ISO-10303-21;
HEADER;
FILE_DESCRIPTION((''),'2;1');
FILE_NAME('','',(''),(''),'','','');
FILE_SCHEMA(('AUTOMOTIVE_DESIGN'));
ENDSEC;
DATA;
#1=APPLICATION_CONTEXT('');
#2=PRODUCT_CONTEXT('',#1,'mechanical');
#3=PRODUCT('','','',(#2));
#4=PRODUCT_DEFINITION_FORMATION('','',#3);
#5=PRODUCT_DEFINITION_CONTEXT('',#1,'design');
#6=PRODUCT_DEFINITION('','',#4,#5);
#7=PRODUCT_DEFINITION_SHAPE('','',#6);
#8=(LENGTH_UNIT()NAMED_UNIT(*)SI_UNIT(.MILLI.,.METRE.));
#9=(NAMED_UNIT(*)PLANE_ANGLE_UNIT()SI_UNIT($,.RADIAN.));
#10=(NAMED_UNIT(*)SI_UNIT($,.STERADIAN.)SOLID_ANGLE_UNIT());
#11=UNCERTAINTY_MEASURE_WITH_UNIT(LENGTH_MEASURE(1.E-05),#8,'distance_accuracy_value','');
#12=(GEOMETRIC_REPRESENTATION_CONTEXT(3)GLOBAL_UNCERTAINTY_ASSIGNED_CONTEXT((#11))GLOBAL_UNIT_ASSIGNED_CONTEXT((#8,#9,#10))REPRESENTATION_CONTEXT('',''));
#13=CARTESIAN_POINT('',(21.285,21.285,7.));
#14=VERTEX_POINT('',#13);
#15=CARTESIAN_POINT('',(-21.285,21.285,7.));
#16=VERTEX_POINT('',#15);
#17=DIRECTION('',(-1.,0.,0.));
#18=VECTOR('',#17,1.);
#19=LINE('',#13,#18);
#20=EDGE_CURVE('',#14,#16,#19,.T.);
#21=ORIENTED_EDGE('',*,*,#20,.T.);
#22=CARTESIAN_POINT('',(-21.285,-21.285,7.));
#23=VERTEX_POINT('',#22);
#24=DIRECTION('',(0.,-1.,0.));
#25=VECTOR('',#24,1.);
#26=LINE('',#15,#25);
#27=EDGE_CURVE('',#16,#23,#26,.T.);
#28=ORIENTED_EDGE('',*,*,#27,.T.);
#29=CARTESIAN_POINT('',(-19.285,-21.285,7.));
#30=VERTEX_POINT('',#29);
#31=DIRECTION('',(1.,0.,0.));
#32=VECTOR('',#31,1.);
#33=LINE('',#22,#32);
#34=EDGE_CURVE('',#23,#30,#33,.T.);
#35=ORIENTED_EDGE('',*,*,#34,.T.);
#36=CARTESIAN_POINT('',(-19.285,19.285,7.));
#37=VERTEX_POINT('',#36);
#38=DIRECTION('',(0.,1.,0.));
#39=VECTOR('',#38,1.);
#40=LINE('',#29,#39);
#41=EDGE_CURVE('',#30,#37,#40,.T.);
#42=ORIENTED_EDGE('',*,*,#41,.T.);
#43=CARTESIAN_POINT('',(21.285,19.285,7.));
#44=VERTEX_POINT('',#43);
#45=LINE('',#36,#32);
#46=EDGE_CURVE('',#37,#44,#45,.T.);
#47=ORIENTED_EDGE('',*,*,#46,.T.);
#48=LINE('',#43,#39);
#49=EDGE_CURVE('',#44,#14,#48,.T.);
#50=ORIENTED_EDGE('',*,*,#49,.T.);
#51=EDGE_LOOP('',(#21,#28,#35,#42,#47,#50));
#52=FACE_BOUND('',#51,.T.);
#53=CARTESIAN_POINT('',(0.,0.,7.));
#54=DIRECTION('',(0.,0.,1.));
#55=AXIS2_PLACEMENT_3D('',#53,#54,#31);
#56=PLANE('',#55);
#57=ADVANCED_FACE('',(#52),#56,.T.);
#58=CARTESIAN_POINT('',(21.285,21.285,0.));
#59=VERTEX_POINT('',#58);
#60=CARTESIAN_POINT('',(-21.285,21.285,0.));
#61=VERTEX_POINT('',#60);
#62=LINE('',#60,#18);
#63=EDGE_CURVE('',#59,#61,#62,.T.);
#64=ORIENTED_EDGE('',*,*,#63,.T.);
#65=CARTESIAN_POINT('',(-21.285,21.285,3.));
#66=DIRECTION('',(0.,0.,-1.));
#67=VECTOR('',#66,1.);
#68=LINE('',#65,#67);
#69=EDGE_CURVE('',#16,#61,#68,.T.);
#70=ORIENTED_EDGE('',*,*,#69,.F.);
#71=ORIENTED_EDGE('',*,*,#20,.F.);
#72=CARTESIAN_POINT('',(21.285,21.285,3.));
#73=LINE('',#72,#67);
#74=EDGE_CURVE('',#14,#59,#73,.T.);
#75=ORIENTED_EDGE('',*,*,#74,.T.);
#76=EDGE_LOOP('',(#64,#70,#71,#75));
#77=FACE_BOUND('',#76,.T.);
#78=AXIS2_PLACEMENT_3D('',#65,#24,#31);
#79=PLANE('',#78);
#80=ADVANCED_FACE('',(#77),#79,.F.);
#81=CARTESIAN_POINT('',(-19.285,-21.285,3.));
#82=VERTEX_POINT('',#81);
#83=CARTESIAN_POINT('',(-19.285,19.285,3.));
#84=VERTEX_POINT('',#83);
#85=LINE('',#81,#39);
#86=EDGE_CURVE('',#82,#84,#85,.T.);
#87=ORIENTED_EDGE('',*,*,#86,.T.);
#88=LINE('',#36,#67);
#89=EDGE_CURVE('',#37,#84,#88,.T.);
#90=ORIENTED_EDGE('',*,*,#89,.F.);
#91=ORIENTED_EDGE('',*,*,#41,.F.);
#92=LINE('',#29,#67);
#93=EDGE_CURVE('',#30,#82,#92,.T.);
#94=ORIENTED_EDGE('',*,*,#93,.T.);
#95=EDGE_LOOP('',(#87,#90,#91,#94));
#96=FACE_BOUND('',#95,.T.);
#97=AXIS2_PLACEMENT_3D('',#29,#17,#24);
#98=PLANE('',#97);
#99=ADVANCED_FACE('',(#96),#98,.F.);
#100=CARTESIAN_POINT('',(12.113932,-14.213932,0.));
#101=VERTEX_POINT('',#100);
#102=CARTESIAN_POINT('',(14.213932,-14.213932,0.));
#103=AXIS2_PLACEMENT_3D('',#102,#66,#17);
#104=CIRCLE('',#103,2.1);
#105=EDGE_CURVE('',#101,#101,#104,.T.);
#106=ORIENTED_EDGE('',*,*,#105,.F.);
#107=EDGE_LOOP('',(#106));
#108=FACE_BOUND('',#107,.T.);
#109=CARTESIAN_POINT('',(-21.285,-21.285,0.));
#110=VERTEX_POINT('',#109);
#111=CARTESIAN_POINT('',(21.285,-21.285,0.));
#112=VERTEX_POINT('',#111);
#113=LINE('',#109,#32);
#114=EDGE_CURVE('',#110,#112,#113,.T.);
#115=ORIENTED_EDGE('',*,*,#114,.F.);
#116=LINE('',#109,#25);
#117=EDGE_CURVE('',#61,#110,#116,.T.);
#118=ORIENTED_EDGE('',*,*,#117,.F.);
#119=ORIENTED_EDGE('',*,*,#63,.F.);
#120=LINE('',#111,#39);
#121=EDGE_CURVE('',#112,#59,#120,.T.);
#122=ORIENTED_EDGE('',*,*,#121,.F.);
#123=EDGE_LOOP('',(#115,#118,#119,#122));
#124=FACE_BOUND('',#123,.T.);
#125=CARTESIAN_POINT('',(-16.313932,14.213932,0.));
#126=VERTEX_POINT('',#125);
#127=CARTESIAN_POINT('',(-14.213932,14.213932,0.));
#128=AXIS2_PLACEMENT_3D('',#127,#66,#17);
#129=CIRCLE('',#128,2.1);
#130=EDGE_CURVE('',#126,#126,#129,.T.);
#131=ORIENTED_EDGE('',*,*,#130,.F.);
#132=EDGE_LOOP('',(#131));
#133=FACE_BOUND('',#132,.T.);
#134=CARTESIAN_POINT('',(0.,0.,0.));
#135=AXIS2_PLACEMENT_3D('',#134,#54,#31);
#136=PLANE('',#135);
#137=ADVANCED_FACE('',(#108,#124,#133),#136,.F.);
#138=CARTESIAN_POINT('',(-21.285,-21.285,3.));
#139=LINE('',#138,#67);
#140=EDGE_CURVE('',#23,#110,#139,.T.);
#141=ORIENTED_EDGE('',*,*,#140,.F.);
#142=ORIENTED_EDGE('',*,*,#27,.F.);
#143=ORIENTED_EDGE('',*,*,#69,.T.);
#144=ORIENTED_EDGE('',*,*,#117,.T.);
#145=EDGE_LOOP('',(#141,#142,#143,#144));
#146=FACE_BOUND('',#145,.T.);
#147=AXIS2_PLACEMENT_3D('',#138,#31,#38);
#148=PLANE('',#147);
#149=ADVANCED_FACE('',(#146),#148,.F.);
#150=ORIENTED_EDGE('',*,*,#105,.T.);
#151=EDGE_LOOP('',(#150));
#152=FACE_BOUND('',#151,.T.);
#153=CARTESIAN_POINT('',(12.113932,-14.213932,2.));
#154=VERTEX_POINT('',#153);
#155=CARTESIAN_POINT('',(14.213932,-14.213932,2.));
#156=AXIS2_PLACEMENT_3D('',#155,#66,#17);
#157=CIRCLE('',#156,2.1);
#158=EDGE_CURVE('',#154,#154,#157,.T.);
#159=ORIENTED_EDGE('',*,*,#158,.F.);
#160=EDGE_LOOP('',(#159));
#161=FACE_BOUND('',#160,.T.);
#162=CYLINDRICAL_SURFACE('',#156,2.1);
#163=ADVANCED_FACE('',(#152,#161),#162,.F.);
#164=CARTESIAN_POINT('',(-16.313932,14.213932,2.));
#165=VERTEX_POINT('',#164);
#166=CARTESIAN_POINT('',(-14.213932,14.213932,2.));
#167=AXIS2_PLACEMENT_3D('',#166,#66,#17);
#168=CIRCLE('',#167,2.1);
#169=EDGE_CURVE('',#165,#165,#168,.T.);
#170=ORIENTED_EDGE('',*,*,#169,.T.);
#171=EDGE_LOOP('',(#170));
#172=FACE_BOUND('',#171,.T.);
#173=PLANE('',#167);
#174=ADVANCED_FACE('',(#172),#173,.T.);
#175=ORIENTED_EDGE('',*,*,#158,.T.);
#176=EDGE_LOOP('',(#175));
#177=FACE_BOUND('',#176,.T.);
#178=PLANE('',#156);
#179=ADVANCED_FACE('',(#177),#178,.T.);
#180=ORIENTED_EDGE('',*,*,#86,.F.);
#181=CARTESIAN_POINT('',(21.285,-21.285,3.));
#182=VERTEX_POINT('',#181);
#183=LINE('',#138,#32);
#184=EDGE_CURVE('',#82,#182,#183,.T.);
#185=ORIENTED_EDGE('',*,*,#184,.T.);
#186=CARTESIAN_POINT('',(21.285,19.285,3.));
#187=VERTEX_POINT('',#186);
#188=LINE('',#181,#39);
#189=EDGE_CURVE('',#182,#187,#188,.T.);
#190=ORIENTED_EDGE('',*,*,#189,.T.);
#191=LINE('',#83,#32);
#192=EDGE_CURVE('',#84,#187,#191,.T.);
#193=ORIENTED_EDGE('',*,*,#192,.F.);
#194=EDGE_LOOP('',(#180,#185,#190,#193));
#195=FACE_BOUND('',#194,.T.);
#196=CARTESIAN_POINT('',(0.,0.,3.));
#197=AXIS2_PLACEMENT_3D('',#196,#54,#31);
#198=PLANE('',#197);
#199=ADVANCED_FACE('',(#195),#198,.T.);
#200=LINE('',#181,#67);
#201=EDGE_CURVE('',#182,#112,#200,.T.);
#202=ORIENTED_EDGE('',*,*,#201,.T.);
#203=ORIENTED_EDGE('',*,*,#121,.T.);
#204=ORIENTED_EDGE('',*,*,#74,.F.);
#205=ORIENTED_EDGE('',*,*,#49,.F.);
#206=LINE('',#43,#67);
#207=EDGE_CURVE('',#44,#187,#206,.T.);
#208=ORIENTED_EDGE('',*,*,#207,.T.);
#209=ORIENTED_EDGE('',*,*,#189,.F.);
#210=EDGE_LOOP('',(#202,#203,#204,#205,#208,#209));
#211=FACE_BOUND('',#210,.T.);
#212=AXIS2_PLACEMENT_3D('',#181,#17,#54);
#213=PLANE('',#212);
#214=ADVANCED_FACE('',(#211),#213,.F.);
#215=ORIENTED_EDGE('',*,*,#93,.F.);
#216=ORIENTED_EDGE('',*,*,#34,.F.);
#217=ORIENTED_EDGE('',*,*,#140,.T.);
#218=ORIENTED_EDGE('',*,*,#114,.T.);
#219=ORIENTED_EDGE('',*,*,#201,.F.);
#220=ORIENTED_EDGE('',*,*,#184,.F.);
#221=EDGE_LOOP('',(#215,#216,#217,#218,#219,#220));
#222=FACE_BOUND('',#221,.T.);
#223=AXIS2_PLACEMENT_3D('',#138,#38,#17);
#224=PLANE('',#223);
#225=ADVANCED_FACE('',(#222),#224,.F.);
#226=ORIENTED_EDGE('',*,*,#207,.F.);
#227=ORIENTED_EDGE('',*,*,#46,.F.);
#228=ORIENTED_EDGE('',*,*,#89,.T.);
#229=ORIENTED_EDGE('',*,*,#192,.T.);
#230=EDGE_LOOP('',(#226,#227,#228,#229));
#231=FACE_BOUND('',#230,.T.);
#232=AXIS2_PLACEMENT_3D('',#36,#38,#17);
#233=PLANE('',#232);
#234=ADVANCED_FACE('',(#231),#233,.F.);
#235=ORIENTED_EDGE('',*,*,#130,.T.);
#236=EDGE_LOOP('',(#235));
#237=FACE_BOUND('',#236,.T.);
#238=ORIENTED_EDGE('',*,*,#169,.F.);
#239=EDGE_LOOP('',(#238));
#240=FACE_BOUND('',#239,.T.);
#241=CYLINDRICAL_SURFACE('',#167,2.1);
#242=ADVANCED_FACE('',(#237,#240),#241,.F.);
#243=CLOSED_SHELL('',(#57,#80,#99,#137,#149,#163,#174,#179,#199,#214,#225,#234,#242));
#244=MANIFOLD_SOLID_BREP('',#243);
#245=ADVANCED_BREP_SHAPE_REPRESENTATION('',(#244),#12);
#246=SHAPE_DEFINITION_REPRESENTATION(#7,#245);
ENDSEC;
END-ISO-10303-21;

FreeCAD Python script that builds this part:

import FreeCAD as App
import Part
import Sketcher
from FreeCAD import Vector
Q = App.Units.Quantity

doc = App.newDocument("Part")
params = doc.addObject("Spreadsheet::Sheet", "Params")
for row, (alias, value) in enumerate([
    ("sketch1_width", "42.57 mm"),
    ("pad1_length", "3 mm"),
    ("sketch2_width", "2 mm"),
    ("sketch2_width2", "42.57 mm"),
    ("pad2_length", "4 mm"),
    ("sketch3_diameter", "4.2 mm"),
    ("pocket1_length", "2 mm"),
], start=1):
    params.set(f"A{row}", alias)
    params.set(f"B{row}", "=" + value)
    params.setAlias(f"B{row}", alias)

body = doc.addObject("PartDesign::Body", "Body")

sketch1 = body.newObject("Sketcher::SketchObject", "Sketch")
sketch1.AttachmentSupport = (doc.getObject("XY_Plane"), [""])
sketch1.MapMode = "FlatFace"
sketch1.addGeometry(Part.LineSegment(Vector(-21.285, -21.285, 0), Vector(21.285, -21.285, 0)), False)
sketch1.addGeometry(Part.LineSegment(Vector(21.285, -21.285, 0), Vector(21.285, 21.285, 0)), False)
sketch1.addGeometry(Part.LineSegment(Vector(21.285, 21.285, 0), Vector(-21.285, 21.285, 0)), False)
sketch1.addGeometry(Part.LineSegment(Vector(-21.285, 21.285, 0), Vector(-21.285, -21.285, 0)), False)
sketch1.addConstraint(Sketcher.Constraint("Coincident", 0, 2, 1, 1))
sketch1.addConstraint(Sketcher.Constraint("Coincident", 1, 2, 2, 1))
sketch1.addConstraint(Sketcher.Constraint("Coincident", 2, 2, 3, 1))
sketch1.addConstraint(Sketcher.Constraint("Coincident", 3, 2, 0, 1))
sketch1.addConstraint(Sketcher.Constraint("Horizontal", 0))
sketch1.addConstraint(Sketcher.Constraint("Vertical", 1))
sketch1.addConstraint(Sketcher.Constraint("Horizontal", 2))
sketch1.addConstraint(Sketcher.Constraint("Vertical", 3))
sketch1.addConstraint(Sketcher.Constraint("Symmetric", 0, 2, 2, 2, -1, 1))
sketch1.addConstraint(Sketcher.Constraint("Equal", 2, 1))
sketch1.addConstraint(Sketcher.Constraint("DistanceX", 0, 1, 0, 2, Q("42.57 mm")))
sketch1.setExpression("Constraints[10]", "Params.sketch1_width")
pad1 = body.newObject("PartDesign::Pad", "Pad")
pad1.Profile = sketch1
pad1.setExpression("Length", "Params.pad1_length")

sketch2 = body.newObject("Sketcher::SketchObject", "Sketch001")
sketch2.AttachmentSupport = (doc.getObject("XY_Plane"), [""])
sketch2.MapMode = "FlatFace"
sketch2.AttachmentOffset = App.Placement(Vector(0, 0, 3), App.Rotation())
sketch2.addGeometry(Part.LineSegment(Vector(21.285, 21.285, 0), Vector(-21.285, 21.285, 0)), False)
sketch2.addGeometry(Part.LineSegment(Vector(-21.285, 21.285, 0), Vector(-21.285, -21.285, 0)), False)
sketch2.addGeometry(Part.LineSegment(Vector(-21.285, -21.285, 0), Vector(-19.285, -21.285, 0)), False)
sketch2.addGeometry(Part.LineSegment(Vector(-19.285, -21.285, 0), Vector(-19.285, 19.285, 0)), False)
sketch2.addGeometry(Part.LineSegment(Vector(-19.285, 19.285, 0), Vector(21.285, 19.285, 0)), False)
sketch2.addGeometry(Part.LineSegment(Vector(21.285, 19.285, 0), Vector(21.285, 21.285, 0)), False)
sketch2.addConstraint(Sketcher.Constraint("Coincident", 0, 2, 1, 1))
sketch2.addConstraint(Sketcher.Constraint("Coincident", 1, 2, 2, 1))
sketch2.addConstraint(Sketcher.Constraint("Coincident", 2, 2, 3, 1))
sketch2.addConstraint(Sketcher.Constraint("Coincident", 3, 2, 4, 1))
sketch2.addConstraint(Sketcher.Constraint("Coincident", 4, 2, 5, 1))
sketch2.addConstraint(Sketcher.Constraint("Coincident", 5, 2, 0, 1))
sketch2.addConstraint(Sketcher.Constraint("Horizontal", 0))
sketch2.addConstraint(Sketcher.Constraint("Vertical", 1))
sketch2.addConstraint(Sketcher.Constraint("Horizontal", 2))
sketch2.addConstraint(Sketcher.Constraint("Vertical", 3))
sketch2.addConstraint(Sketcher.Constraint("Horizontal", 4))
sketch2.addConstraint(Sketcher.Constraint("Vertical", 5))
sketch2.addConstraint(Sketcher.Constraint("Symmetric", 1, 2, 5, 2, -1, 1))
sketch2.addConstraint(Sketcher.Constraint("Equal", 0, 1))
sketch2.addConstraint(Sketcher.Constraint("Equal", 4, 3))
sketch2.addConstraint(Sketcher.Constraint("DistanceX", 2, 1, 2, 2, Q("2 mm")))
sketch2.addConstraint(Sketcher.Constraint("DistanceX", 0, 2, 0, 1, Q("42.57 mm")))
sketch2.setExpression("Constraints[15]", "Params.sketch2_width")
sketch2.setExpression("Constraints[16]", "Params.sketch2_width2")
pad2 = body.newObject("PartDesign::Pad", "Pad001")
pad2.Profile = sketch2
pad2.setExpression("Length", "Params.pad2_length")

sketch3 = body.newObject("Sketcher::SketchObject", "Sketch002")
sketch3.AttachmentSupport = (doc.getObject("XY_Plane"), [""])
sketch3.MapMode = "FlatFace"
sketch3.addGeometry(Part.Circle(Vector(-14.213932, 14.213932, 0), Vector(0, 0, 1), 2.1), False)
sketch3.addGeometry(Part.Circle(Vector(14.213932, -14.213932, 0), Vector(0, 0, 1), 2.1), False)
sketch3.addConstraint(Sketcher.Constraint("Equal", 0, 1))
sketch3.addConstraint(Sketcher.Constraint("Symmetric", 0, 3, 1, 3, -1, 1))
sketch3.addConstraint(Sketcher.Constraint("Diameter", 0, Q("4.2 mm")))
sketch3.addConstraint(Sketcher.Constraint("DistanceX", 0, 3, -1, 1, Q("14.213932 mm")))
sketch3.addConstraint(Sketcher.Constraint("DistanceY", -1, 1, 0, 3, Q("14.213932 mm")))
sketch3.setExpression("Constraints[2]", "Params.sketch3_diameter")
pocket1 = body.newObject("PartDesign::Pocket", "Pocket")
pocket1.Profile = sketch3
pocket1.setExpression("Length", "Params.pocket1_length")
pocket1.Reversed = True

doc.recompute()
